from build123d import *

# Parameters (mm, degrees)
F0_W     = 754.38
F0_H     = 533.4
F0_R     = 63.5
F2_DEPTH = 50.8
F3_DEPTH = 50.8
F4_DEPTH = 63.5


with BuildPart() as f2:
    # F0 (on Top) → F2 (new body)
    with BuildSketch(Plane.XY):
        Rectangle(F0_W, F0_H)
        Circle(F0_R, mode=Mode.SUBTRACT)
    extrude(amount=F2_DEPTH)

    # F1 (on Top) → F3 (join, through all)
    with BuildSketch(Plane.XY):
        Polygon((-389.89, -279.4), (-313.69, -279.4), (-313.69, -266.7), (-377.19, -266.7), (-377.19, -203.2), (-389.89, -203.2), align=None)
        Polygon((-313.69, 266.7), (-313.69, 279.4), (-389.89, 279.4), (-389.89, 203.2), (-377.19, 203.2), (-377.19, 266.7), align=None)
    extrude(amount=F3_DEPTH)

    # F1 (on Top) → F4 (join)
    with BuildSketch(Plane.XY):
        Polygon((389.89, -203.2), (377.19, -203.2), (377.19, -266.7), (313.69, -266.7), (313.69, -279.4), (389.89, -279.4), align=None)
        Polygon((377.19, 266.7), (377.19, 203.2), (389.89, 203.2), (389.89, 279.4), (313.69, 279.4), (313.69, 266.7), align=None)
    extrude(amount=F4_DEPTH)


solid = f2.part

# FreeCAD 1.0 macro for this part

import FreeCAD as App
import Part
import Sketcher
from FreeCAD import Vector
Q = App.Units.Quantity

doc = App.newDocument("Part")
body = doc.addObject("PartDesign::Body", "Body")

# Sketch on XY plane
sketch1 = body.newObject("Sketcher::SketchObject", "Sketch")
sketch1.AttachmentSupport = (doc.getObject("XY_Plane"), [""])
sketch1.MapMode = "FlatFace"
sketch1.addGeometry(Part.LineSegment(Vector(-377, 267, 0), Vector(-377, -267, 0)), False)
sketch1.addGeometry(Part.LineSegment(Vector(-377, -267, 0), Vector(377, -267, 0)), False)
sketch1.addGeometry(Part.LineSegment(Vector(377, -267, 0), Vector(377, 267, 0)), False)
sketch1.addGeometry(Part.LineSegment(Vector(377, 267, 0), Vector(-377, 267, 0)), False)
sketch1.addGeometry(Part.Circle(Vector(0, 0, 0), Vector(0, 0, 1), 64), False)
sketch1.addConstraint(Sketcher.Constraint("Coincident", 0, 2, 1, 1))
sketch1.addConstraint(Sketcher.Constraint("Coincident", 1, 2, 2, 1))
sketch1.addConstraint(Sketcher.Constraint("Coincident", 2, 2, 3, 1))
sketch1.addConstraint(Sketcher.Constraint("Coincident", 3, 2, 0, 1))
sketch1.addConstraint(Sketcher.Constraint("Vertical", 0))
sketch1.addConstraint(Sketcher.Constraint("Horizontal", 1))
sketch1.addConstraint(Sketcher.Constraint("Vertical", 2))
sketch1.addConstraint(Sketcher.Constraint("Horizontal", 3))
sketch1.addConstraint(Sketcher.Constraint("Coincident", 4, 3, -1, 1))
sketch1.addConstraint(Sketcher.Constraint("Symmetric", 0, 2, 2, 2, -1, 1))
sketch1.addConstraint(Sketcher.Constraint("Diameter", 4, Q("5 in")))
sketch1.addConstraint(Sketcher.Constraint("DistanceY", 0, 2, 0, 1, Q("21 in")))
sketch1.addConstraint(Sketcher.Constraint("DistanceX", 1, 1, 1, 2, Q("29.7 in")))
pad1 = body.newObject("PartDesign::Pad", "Pad")
pad1.Profile = sketch1
pad1.Length = Q("2 in")

# Sketch on XY plane
sketch2 = body.newObject("Sketcher::SketchObject", "Sketch001")
sketch2.AttachmentSupport = (doc.getObject("XY_Plane"), [""])
sketch2.MapMode = "FlatFace"
sketch2.addGeometry(Part.LineSegment(Vector(-390, -279, 0), Vector(-314, -279, 0)), False)
sketch2.addGeometry(Part.LineSegment(Vector(-314, -279, 0), Vector(-314, -267, 0)), False)
sketch2.addGeometry(Part.LineSegment(Vector(-314, -267, 0), Vector(-377, -267, 0)), False)
sketch2.addGeometry(Part.LineSegment(Vector(-377, -267, 0), Vector(-377, -203, 0)), False)
sketch2.addGeometry(Part.LineSegment(Vector(-377, -203, 0), Vector(-390, -203, 0)), False)
sketch2.addGeometry(Part.LineSegment(Vector(-390, -203, 0), Vector(-390, -279, 0)), False)
sketch2.addGeometry(Part.LineSegment(Vector(-314, 267, 0), Vector(-314, 279, 0)), False)
sketch2.addGeometry(Part.LineSegment(Vector(-314, 279, 0), Vector(-390, 279, 0)), False)
sketch2.addGeometry(Part.LineSegment(Vector(-390, 279, 0), Vector(-390, 203, 0)), False)
sketch2.addGeometry(Part.LineSegment(Vector(-390, 203, 0), Vector(-377, 203, 0)), False)
sketch2.addGeometry(Part.LineSegment(Vector(-377, 203, 0), Vector(-377, 267, 0)), False)
sketch2.addGeometry(Part.LineSegment(Vector(-377, 267, 0), Vector(-314, 267, 0)), False)
sketch2.addConstraint(Sketcher.Constraint("Coincident", 0, 2, 1, 1))
sketch2.addConstraint(Sketcher.Constraint("Coincident", 1, 2, 2, 1))
sketch2.addConstraint(Sketcher.Constraint("Coincident", 2, 2, 3, 1))
sketch2.addConstraint(Sketcher.Constraint("Coincident", 3, 2, 4, 1))
sketch2.addConstraint(Sketcher.Constraint("Coincident", 4, 2, 5, 1))
sketch2.addConstraint(Sketcher.Constraint("Coincident", 5, 2, 0, 1))
sketch2.addConstraint(Sketcher.Constraint("Coincident", 6, 2, 7, 1))
sketch2.addConstraint(Sketcher.Constraint("Coincident", 7, 2, 8, 1))
sketch2.addConstraint(Sketcher.Constraint("Coincident", 8, 2, 9, 1))
sketch2.addConstraint(Sketcher.Constraint("Coincident", 9, 2, 10, 1))
sketch2.addConstraint(Sketcher.Constraint("Coincident", 10, 2, 11, 1))
sketch2.addConstraint(Sketcher.Constraint("Coincident", 11, 2, 6, 1))
sketch2.addConstraint(Sketcher.Constraint("Horizontal", 0))
sketch2.addConstraint(Sketcher.Constraint("Vertical", 1))
sketch2.addConstraint(Sketcher.Constraint("Horizontal", 2))
sketch2.addConstraint(Sketcher.Constraint("Vertical", 3))
sketch2.addConstraint(Sketcher.Constraint("Horizontal", 4))
sketch2.addConstraint(Sketcher.Constraint("Vertical", 5))
sketch2.addConstraint(Sketcher.Constraint("Vertical", 6))
sketch2.addConstraint(Sketcher.Constraint("Horizontal", 7))
sketch2.addConstraint(Sketcher.Constraint("Vertical", 8))
sketch2.addConstraint(Sketcher.Constraint("Horizontal", 9))
sketch2.addConstraint(Sketcher.Constraint("Vertical", 10))
sketch2.addConstraint(Sketcher.Constraint("Horizontal", 11))
sketch2.addConstraint(Sketcher.Constraint("Symmetric", 0, 2, 6, 2, -1))
sketch2.addConstraint(Sketcher.Constraint("Symmetric", 4, 2, 8, 2, -1))
sketch2.addConstraint(Sketcher.Constraint("Symmetric", 2, 2, 10, 2, -1))
sketch2.addConstraint(Sketcher.Constraint("Equal", 9, 1))
sketch2.addConstraint(Sketcher.Constraint("Equal", 11, 3))
sketch2.addConstraint(Sketcher.Constraint("DistanceX", 0, 1, 0, 2, Q("3 in")))
sketch2.addConstraint(Sketcher.Constraint("DistanceX", 2, 2, 2, 1, Q("2.5 in")))
sketch2.addConstraint(Sketcher.Constraint("DistanceY", 0, 2, -1, 1, Q("11 in")))
sketch2.addConstraint(Sketcher.Constraint("DistanceX", 0, 2, -1, 1, Q("12.35 in")))
pad2 = body.newObject("PartDesign::Pad", "Pad001")
pad2.Profile = sketch2
pad2.Type = "UpToLast"

# Sketch on XY plane
sketch3 = body.newObject("Sketcher::SketchObject", "Sketch002")
sketch3.AttachmentSupport = (doc.getObject("XY_Plane"), [""])
sketch3.MapMode = "FlatFace"
sketch3.addGeometry(Part.LineSegment(Vector(390, -203, 0), Vector(377, -203, 0)), False)
sketch3.addGeometry(Part.LineSegment(Vector(377, -203, 0), Vector(377, -267, 0)), False)
sketch3.addGeometry(Part.LineSegment(Vector(377, -267, 0), Vector(314, -267, 0)), False)
sketch3.addGeometry(Part.LineSegment(Vector(314, -267, 0), Vector(314, -279, 0)), False)
sketch3.addGeometry(Part.LineSegment(Vector(314, -279, 0), Vector(390, -279, 0)), False)
sketch3.addGeometry(Part.LineSegment(Vector(390, -279, 0), Vector(390, -203, 0)), False)
sketch3.addGeometry(Part.LineSegment(Vector(377, 267, 0), Vector(377, 203, 0)), False)
sketch3.addGeometry(Part.LineSegment(Vector(377, 203, 0), Vector(390, 203, 0)), False)
sketch3.addGeometry(Part.LineSegment(Vector(390, 203, 0), Vector(390, 279, 0)), False)
sketch3.addGeometry(Part.LineSegment(Vector(390, 279, 0), Vector(314, 279, 0)), False)
sketch3.addGeometry(Part.LineSegment(Vector(314, 279, 0), Vector(314, 267, 0)), False)
sketch3.addGeometry(Part.LineSegment(Vector(314, 267, 0), Vector(377, 267, 0)), False)
sketch3.addConstraint(Sketcher.Constraint("Coincident", 0, 2, 1, 1))
sketch3.addConstraint(Sketcher.Constraint("Coincident", 1, 2, 2, 1))
sketch3.addConstraint(Sketcher.Constraint("Coincident", 2, 2, 3, 1))
sketch3.addConstraint(Sketcher.Constraint("Coincident", 3, 2, 4, 1))
sketch3.addConstraint(Sketcher.Constraint("Coincident", 4, 2, 5, 1))
sketch3.addConstraint(Sketcher.Constraint("Coincident", 5, 2, 0, 1))
sketch3.addConstraint(Sketcher.Constraint("Coincident", 6, 2, 7, 1))
sketch3.addConstraint(Sketcher.Constraint("Coincident", 7, 2, 8, 1))
sketch3.addConstraint(Sketcher.Constraint("Coincident", 8, 2, 9, 1))
sketch3.addConstraint(Sketcher.Constraint("Coincident", 9, 2, 10, 1))
sketch3.addConstraint(Sketcher.Constraint("Coincident", 10, 2, 11, 1))
sketch3.addConstraint(Sketcher.Constraint("Coincident", 11, 2, 6, 1))
sketch3.addConstraint(Sketcher.Constraint("Horizontal", 0))
sketch3.addConstraint(Sketcher.Constraint("Vertical", 1))
sketch3.addConstraint(Sketcher.Constraint("Horizontal", 2))
sketch3.addConstraint(Sketcher.Constraint("Vertical", 3))
sketch3.addConstraint(Sketcher.Constraint("Horizontal", 4))
sketch3.addConstraint(Sketcher.Constraint("Vertical", 5))
sketch3.addConstraint(Sketcher.Constraint("Vertical", 6))
sketch3.addConstraint(Sketcher.Constraint("Horizontal", 7))
sketch3.addConstraint(Sketcher.Constraint("Vertical", 8))
sketch3.addConstraint(Sketcher.Constraint("Horizontal", 9))
sketch3.addConstraint(Sketcher.Constraint("Vertical", 10))
sketch3.addConstraint(Sketcher.Constraint("Horizontal", 11))
sketch3.addConstraint(Sketcher.Constraint("Symmetric", 0, 2, 6, 2, -1))
sketch3.addConstraint(Sketcher.Constraint("Symmetric", 4, 2, 8, 2, -1))
sketch3.addConstraint(Sketcher.Constraint("Symmetric", 2, 2, 10, 2, -1))
sketch3.addConstraint(Sketcher.Constraint("Equal", 11, 1))
sketch3.addConstraint(Sketcher.Constraint("Equal", 7, 3))
sketch3.addConstraint(Sketcher.Constraint("DistanceX", 4, 1, 4, 2, Q("3 in")))
sketch3.addConstraint(Sketcher.Constraint("DistanceX", 0, 2, 0, 1, Q("0.5 in")))
sketch3.addConstraint(Sketcher.Constraint("DistanceY", 0, 2, -1, 1, Q("8 in")))
sketch3.addConstraint(Sketcher.Constraint("DistanceX", -1, 1, 0, 2, Q("14.85 in")))
pad3 = body.newObject("PartDesign::Pad", "Pad002")
pad3.Profile = sketch3
pad3.Length = Q("2.5 in")

doc.recompute()
